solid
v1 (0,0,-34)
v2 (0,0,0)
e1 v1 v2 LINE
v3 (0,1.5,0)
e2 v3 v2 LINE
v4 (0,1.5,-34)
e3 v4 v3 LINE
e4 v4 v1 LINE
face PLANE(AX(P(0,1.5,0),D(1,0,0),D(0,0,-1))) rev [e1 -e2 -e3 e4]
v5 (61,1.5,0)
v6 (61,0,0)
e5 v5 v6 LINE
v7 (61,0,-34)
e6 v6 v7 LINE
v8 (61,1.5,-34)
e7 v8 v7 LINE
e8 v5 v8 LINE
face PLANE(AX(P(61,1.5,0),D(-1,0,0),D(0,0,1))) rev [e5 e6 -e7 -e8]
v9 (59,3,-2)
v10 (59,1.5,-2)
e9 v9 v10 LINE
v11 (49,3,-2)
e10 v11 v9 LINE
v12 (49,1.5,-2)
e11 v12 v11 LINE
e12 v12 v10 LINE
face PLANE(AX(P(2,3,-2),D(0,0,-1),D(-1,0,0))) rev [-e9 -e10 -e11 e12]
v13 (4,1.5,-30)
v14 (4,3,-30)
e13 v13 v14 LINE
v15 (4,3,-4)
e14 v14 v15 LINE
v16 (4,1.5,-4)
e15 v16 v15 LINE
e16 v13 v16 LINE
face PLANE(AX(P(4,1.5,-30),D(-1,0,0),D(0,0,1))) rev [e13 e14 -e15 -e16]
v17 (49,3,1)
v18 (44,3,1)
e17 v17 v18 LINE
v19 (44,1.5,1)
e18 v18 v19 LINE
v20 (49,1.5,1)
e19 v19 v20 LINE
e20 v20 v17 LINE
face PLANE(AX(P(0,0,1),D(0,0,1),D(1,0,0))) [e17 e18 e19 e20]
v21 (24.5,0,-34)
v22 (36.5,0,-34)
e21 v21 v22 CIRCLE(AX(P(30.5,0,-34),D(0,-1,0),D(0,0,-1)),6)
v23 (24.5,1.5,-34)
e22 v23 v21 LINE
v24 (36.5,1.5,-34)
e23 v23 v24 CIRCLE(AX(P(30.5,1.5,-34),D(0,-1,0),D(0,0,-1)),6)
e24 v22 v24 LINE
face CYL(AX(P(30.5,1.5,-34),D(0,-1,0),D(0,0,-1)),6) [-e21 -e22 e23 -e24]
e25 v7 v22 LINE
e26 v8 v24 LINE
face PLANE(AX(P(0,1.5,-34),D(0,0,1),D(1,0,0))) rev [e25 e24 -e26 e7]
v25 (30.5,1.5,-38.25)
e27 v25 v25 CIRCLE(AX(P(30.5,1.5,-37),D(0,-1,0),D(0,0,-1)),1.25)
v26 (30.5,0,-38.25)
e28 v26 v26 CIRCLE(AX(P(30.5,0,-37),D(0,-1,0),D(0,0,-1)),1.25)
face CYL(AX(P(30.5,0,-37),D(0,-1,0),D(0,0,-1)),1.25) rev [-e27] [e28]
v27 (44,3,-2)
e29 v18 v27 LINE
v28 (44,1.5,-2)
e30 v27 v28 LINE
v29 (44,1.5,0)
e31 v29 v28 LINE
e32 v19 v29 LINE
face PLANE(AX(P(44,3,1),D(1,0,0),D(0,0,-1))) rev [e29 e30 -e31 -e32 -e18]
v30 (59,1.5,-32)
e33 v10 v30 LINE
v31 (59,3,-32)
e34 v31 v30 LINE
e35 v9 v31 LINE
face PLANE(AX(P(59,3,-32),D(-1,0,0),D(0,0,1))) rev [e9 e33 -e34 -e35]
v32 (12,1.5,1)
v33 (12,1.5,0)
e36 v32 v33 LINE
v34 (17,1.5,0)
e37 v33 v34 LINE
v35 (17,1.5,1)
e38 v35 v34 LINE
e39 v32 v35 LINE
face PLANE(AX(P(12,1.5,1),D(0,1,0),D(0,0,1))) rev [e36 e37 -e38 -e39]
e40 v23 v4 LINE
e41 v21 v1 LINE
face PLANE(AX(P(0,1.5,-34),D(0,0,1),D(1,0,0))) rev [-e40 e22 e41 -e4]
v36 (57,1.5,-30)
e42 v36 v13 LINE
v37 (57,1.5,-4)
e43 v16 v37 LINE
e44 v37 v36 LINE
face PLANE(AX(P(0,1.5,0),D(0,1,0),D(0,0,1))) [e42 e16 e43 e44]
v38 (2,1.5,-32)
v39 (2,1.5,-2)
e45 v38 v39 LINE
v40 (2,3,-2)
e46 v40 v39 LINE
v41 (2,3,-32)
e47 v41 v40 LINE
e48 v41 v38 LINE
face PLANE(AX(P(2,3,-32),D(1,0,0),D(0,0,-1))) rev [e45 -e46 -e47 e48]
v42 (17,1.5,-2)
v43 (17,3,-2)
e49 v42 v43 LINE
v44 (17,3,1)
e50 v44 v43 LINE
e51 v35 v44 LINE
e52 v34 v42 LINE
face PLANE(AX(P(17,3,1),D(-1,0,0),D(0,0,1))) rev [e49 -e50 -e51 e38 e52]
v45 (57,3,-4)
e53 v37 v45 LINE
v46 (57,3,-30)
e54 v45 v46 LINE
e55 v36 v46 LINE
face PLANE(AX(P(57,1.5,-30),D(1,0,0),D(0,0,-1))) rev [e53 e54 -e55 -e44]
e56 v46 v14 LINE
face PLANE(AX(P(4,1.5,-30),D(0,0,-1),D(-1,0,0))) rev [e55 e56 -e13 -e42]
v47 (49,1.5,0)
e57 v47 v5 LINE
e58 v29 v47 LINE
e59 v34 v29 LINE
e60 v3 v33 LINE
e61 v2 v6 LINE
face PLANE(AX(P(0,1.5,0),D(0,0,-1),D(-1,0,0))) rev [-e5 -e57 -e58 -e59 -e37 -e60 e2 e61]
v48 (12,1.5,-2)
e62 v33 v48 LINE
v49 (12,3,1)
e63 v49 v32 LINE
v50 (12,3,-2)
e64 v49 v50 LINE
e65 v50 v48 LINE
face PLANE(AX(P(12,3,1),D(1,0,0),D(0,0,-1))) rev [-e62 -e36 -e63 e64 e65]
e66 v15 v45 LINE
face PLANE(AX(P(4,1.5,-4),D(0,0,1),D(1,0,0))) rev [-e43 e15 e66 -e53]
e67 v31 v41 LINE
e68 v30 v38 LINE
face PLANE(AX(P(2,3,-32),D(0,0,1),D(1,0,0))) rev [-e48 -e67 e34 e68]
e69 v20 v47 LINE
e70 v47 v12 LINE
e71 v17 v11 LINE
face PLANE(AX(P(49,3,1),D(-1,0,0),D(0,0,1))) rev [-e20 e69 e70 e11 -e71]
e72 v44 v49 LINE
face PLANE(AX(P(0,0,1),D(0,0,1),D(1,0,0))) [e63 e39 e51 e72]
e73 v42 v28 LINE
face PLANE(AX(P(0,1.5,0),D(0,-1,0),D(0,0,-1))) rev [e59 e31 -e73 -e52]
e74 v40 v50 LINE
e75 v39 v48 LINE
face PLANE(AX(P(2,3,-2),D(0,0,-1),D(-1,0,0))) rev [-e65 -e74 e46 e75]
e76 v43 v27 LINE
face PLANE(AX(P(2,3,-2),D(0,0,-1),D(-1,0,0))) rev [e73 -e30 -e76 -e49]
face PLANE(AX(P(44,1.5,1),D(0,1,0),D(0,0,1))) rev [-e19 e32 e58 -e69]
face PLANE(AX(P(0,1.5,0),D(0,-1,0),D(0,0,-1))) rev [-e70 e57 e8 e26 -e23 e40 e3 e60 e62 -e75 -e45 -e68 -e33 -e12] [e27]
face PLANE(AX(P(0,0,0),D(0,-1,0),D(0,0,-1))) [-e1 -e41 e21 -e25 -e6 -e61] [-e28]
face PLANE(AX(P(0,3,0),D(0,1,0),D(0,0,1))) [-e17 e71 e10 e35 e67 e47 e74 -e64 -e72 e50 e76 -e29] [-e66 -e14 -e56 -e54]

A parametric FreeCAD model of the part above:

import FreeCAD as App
import Part
import Sketcher
from FreeCAD import Vector
Q = App.Units.Quantity


def add_polygon(sketch, points):
    """Adds a closed chain of lines whose ends are joined by coincident constraints."""
    first, n = sketch.GeometryCount, len(points)
    for a, b in zip(points, points[1:] + points[:1]):
        sketch.addGeometry(Part.LineSegment(App.Vector(*a, 0), App.Vector(*b, 0)), False)
    for i in range(n):
        sketch.addConstraint(Sketcher.Constraint("Coincident", first + i, 2, first + (i + 1) % n, 1))

doc = App.newDocument("Part")
params = doc.addObject("Spreadsheet::Sheet", "Params")
for row, (alias, value) in enumerate([
    ("sketch1_width", "61 mm"),
    ("sketch1_height", "34 mm"),
    ("pad1_length", "1.5 mm"),
    ("sketch2_width", "57 mm"),
    ("sketch2_height", "30 mm"),
    ("pad2_length", "1.5 mm"),
    ("sketch3_width", "53 mm"),
    ("sketch3_height", "26 mm"),
    ("pocket1_length", "1.5 mm"),
    ("sketch4_diameter", "12 mm"),
    ("pad3_length", "1.5 mm"),
    ("sketch5_diameter", "2.5 mm"),
    ("hole_diameter", "2.5 mm"),
    ("hole_depth", "7.5 mm"),
    ("sketch6_width", "5 mm"),
    ("sketch6_height", "1.5 mm"),
    ("pad4_length", "3 mm"),
], start=1):
    params.set(f"A{row}", alias)
    params.set(f"B{row}", "=" + value)
    params.setAlias(f"B{row}", alias)

body = doc.addObject("PartDesign::Body", "Body")

sketch1 = body.newObject("Sketcher::SketchObject", "Sketch")
sketch1.AttachmentSupport = (doc.getObject("XZ_Plane"), [""])
sketch1.MapMode = "FlatFace"
add_polygon(sketch1, [(0, -34), (0, 0), (61, 0), (61, -34)])
sketch1.addConstraint([
    Sketcher.Constraint("Vertical", 0),
    Sketcher.Constraint("Horizontal", 1),
    Sketcher.Constraint("Vertical", 2),
    Sketcher.Constraint("Horizontal", 3),
    Sketcher.Constraint("Coincident", 0, 2, -1, 1),
    Sketcher.Constraint("DistanceX", 1, 1, 1, 2, Q("61 mm")),
    Sketcher.Constraint("DistanceY", 0, 1, 0, 2, Q("34 mm")),
])
sketch1.setExpression("Constraints[9]", "Params.sketch1_width")
sketch1.setExpression("Constraints[10]", "Params.sketch1_height")
pad1 = body.newObject("PartDesign::Pad", "Pad")
pad1.Profile = sketch1
pad1.setExpression("Length", "Params.pad1_length")
pad1.Reversed = True

sketch2 = body.newObject("Sketcher::SketchObject", "Sketch001")
sketch2.AttachmentSupport = (doc.getObject("XZ_Plane"), [""])
sketch2.MapMode = "FlatFace"
sketch2.AttachmentOffset = App.Placement(Vector(0, 0, -1.5), App.Rotation())
add_polygon(sketch2, [(2, -32), (2, -2), (59, -2), (59, -32)])
sketch2.addConstraint([
    Sketcher.Constraint("Vertical", 0),
    Sketcher.Constraint("Horizontal", 1),
    Sketcher.Constraint("Vertical", 2),
    Sketcher.Constraint("Horizontal", 3),
    Sketcher.Constraint("DistanceX", 1, 1, 1, 2, Q("57 mm")),
    Sketcher.Constraint("DistanceY", 0, 1, 0, 2, Q("30 mm")),
    Sketcher.Constraint("DistanceX", -1, 1, 0, 2, Q("2 mm")),
    Sketcher.Constraint("DistanceY", 0, 2, -1, 1, Q("2 mm")),
])
sketch2.setExpression("Constraints[8]", "Params.sketch2_width")
sketch2.setExpression("Constraints[9]", "Params.sketch2_height")
pad2 = body.newObject("PartDesign::Pad", "Pad001")
pad2.Profile = sketch2
pad2.setExpression("Length", "Params.pad2_length")
pad2.Reversed = True

sketch3 = body.newObject("Sketcher::SketchObject", "Sketch002")
sketch3.AttachmentSupport = (doc.getObject("XZ_Plane"), [""])
sketch3.MapMode = "FlatFace"
sketch3.AttachmentOffset = App.Placement(Vector(0, 0, -3), App.Rotation())
add_polygon(sketch3, [(4, -30), (4, -4), (57, -4), (57, -30)])
sketch3.addConstraint([
    Sketcher.Constraint("Vertical", 0),
    Sketcher.Constraint("Horizontal", 1),
    Sketcher.Constraint("Vertical", 2),
    Sketcher.Constraint("Horizontal", 3),
    Sketcher.Constraint("DistanceX", 1, 1, 1, 2, Q("53 mm")),
    Sketcher.Constraint("DistanceY", 0, 1, 0, 2, Q("26 mm")),
    Sketcher.Constraint("DistanceX", -1, 1, 0, 2, Q("4 mm")),
    Sketcher.Constraint("DistanceY", 0, 2, -1, 1, Q("4 mm")),
])
sketch3.setExpression("Constraints[8]", "Params.sketch3_width")
sketch3.setExpression("Constraints[9]", "Params.sketch3_height")
pocket1 = body.newObject("PartDesign::Pocket", "Pocket")
pocket1.Profile = sketch3
pocket1.setExpression("Length", "Params.pocket1_length")
pocket1.Reversed = True

sketch4 = body.newObject("Sketcher::SketchObject", "Sketch003")
sketch4.AttachmentSupport = (doc.getObject("XZ_Plane"), [""])
sketch4.MapMode = "FlatFace"
sketch4.addGeometry(Part.Circle(Vector(30, -34, 0), Vector(0, 0, 1), 6), False)
sketch4.addConstraint([
    Sketcher.Constraint("Diameter", 0, Q("12 mm")),
    Sketcher.Constraint("DistanceY", 0, 3, -1, 1, Q("34 mm")),
    Sketcher.Constraint("DistanceX", -1, 1, 0, 3, Q("30.5 mm")),
])
sketch4.setExpression("Constraints[0]", "Params.sketch4_diameter")
pad3 = body.newObject("PartDesign::Pad", "Pad002")
pad3.Profile = sketch4
pad3.setExpression("Length", "Params.pad3_length")
pad3.Reversed = True

sketch5 = body.newObject("Sketcher::SketchObject", "Sketch004")
sketch5.AttachmentSupport = (doc.getObject("XZ_Plane"), [""])
sketch5.MapMode = "FlatFace"
sketch5.addGeometry(Part.Circle(Vector(30.5, -37, 0), Vector(0, 0, 1), 1.2), False)
sketch5.addConstraint([
    Sketcher.Constraint("Diameter", 0, Q("2.5 mm")),
    Sketcher.Constraint("DistanceY", 0, 3, -1, 1, Q("37 mm")),
    Sketcher.Constraint("DistanceX", -1, 1, 0, 3, Q("30.5 mm")),
])
sketch5.setExpression("Constraints[0]", "Params.sketch5_diameter")
doc.recompute()
hole = body.newObject("PartDesign::Hole", "Hole")
hole.Profile = sketch5
hole.ThreadType = "None"
hole.setExpression("Diameter", "Params.hole_diameter")
hole.DepthType = "Dimension"
hole.setExpression("Depth", "Params.hole_depth")
hole.DrillPoint = "Angled"
hole.DrillPointAngle = 118

sketch6 = body.newObject("Sketcher::SketchObject", "Sketch005")
sketch6.AttachmentSupport = (doc.getObject("XY_Plane"), [""])
sketch6.MapMode = "FlatFace"
sketch6.AttachmentOffset = App.Placement(Vector(0, 0, -2), App.Rotation())
add_polygon(sketch6, [(12, 3), (12, 1.5), (17, 1.5), (17, 3)])
add_polygon(sketch6, [(44, 3), (44, 1.5), (49, 1.5), (49, 3)])
sketch6.addConstraint([
    Sketcher.Constraint("Vertical", 0),
    Sketcher.Constraint("Horizontal", 1),
    Sketcher.Constraint("Vertical", 2),
    Sketcher.Constraint("Horizontal", 3),
    Sketcher.Constraint("Vertical", 4),
    Sketcher.Constraint("Horizontal", 5),
    Sketcher.Constraint("Vertical", 6),
    Sketcher.Constraint("Horizontal", 7),
    Sketcher.Constraint("Horizontal", 1, 2, 4, 2),
    Sketcher.Constraint("Horizontal", 3, 2, 6, 2),
    Sketcher.Constraint("Equal", 3, 5),
    Sketcher.Constraint("DistanceX", 1, 1, 1, 2, Q("5 mm")),
    Sketcher.Constraint("DistanceY", 0, 2, 0, 1, Q("1.5 mm")),
    Sketcher.Constraint("DistanceX", -1, 1, 0, 2, Q("12 mm")),
    Sketcher.Constraint("DistanceY", -1, 1, 2, 2, Q("3 mm")),
    Sketcher.Constraint("DistanceX", -1, 1, 4, 2, Q("44 mm")),
])
sketch6.setExpression("Constraints[19]", "Params.sketch6_width")
sketch6.setExpression("Constraints[20]", "Params.sketch6_height")
pad4 = body.newObject("PartDesign::Pad", "Pad003")
pad4.Profile = sketch6
pad4.setExpression("Length", "Params.pad4_length")

doc.recompute()
